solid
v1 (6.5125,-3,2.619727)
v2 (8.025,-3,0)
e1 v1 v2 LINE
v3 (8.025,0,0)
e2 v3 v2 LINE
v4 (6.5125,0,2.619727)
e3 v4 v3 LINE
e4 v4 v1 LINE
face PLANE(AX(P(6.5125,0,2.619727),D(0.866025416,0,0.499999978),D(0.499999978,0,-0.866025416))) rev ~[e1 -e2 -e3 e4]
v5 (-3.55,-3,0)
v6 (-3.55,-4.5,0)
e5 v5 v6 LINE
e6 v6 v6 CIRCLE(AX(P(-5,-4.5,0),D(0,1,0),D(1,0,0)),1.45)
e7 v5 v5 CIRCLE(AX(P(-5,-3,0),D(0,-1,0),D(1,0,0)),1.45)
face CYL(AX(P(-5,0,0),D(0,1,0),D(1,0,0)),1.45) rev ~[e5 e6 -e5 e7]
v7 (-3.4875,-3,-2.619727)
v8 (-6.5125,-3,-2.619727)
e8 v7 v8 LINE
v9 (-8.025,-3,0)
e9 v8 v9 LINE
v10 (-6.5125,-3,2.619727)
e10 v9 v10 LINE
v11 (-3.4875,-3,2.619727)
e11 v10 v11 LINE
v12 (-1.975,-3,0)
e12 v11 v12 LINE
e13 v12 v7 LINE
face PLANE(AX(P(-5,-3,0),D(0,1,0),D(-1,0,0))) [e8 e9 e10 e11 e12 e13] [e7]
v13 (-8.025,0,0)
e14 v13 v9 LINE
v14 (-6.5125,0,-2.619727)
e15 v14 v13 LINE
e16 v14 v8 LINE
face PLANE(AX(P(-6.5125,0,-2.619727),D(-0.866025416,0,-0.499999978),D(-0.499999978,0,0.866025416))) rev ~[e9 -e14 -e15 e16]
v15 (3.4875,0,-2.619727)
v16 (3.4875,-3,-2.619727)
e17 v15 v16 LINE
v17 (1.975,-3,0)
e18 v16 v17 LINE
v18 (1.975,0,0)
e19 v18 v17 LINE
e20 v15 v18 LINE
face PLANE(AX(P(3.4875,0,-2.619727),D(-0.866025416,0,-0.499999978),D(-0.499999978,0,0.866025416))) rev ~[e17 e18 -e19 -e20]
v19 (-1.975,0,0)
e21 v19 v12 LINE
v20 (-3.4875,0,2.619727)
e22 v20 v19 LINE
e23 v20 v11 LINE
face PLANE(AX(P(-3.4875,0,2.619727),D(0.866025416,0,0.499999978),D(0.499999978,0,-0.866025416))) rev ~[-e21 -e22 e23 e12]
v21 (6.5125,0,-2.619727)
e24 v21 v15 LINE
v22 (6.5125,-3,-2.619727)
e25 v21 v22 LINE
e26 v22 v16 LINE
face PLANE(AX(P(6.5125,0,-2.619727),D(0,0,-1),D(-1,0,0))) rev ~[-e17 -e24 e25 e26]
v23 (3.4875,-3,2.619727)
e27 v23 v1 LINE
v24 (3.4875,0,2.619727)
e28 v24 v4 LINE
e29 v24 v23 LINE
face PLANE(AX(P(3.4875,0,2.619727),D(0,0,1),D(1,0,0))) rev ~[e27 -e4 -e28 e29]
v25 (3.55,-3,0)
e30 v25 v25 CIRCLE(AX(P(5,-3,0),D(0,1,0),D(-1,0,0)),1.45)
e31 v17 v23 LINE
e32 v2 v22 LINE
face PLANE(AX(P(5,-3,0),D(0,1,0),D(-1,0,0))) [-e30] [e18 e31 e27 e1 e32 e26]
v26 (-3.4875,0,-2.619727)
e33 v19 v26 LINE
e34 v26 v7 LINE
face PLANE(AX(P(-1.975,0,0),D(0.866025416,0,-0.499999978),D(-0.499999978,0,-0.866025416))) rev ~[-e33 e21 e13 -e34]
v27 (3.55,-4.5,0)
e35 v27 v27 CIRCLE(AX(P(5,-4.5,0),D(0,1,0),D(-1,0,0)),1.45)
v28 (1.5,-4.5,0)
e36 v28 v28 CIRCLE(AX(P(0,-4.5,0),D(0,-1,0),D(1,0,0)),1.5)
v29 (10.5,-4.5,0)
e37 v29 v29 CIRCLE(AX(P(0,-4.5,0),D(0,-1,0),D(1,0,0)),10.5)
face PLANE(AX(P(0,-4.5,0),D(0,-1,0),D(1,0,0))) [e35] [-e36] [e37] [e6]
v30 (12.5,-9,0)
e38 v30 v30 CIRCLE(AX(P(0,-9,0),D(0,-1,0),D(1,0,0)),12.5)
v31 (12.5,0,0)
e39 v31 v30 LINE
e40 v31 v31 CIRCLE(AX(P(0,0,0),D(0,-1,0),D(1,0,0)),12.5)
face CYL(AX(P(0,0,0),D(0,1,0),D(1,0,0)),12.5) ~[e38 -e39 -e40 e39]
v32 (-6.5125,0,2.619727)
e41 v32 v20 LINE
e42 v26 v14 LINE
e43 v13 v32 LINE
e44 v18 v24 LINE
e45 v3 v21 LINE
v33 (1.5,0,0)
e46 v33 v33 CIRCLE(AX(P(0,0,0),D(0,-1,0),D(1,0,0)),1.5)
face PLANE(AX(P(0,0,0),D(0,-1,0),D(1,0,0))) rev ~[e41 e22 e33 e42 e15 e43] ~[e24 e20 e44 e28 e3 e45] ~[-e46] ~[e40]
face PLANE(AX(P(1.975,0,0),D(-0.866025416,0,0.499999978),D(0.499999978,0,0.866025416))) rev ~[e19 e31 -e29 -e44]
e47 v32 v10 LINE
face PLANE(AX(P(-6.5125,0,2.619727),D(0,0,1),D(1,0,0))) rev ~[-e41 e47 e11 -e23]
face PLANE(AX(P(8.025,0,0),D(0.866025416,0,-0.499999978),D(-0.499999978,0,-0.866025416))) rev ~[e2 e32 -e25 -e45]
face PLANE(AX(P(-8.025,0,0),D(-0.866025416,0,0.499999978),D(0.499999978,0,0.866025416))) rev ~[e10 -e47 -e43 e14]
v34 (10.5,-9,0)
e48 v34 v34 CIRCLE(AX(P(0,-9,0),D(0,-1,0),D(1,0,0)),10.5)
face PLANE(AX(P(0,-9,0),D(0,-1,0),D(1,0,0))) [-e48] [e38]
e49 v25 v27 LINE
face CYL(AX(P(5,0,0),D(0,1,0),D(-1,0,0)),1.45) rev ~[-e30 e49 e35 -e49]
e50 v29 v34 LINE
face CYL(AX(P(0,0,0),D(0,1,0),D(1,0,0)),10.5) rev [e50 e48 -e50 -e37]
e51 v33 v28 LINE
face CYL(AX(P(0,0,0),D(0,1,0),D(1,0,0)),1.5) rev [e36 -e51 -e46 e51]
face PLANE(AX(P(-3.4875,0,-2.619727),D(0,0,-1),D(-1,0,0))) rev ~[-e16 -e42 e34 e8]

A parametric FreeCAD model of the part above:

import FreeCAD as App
import Part
import Sketcher

V = App.Vector
Q = App.Units.Quantity


def add_polygon(sketch, points):
    """Adds a closed chain of lines whose ends are joined by coincident constraints."""
    first, n = sketch.GeometryCount, len(points)
    for a, b in zip(points, points[1:] + points[:1]):
        sketch.addGeometry(Part.LineSegment(App.Vector(*a, 0), App.Vector(*b, 0)), False)
    for i in range(n):
        sketch.addConstraint(Sketcher.Constraint("Coincident", first + i, 2, first + (i + 1) % n, 1))

doc = App.newDocument("Part")
body = doc.addObject("PartDesign::Body", "Body")

sketch1 = body.newObject("Sketcher::SketchObject", "Sketch")
sketch1.AttachmentSupport = (doc.getObject("XZ_Plane"), [""])
sketch1.MapMode = "FlatFace"
sketch1.addGeometry([
    Part.Circle(V(0, 0, 0), V(0, 0, 1), 10.5),
    Part.Circle(V(0, 0, 0), V(0, 0, 1), 1.5),
], False)
sketch1.addConstraint([
    Sketcher.Constraint("Coincident", 0, 3, -1, 1),
    Sketcher.Constraint("Coincident", 1, 3, -1, 1),
    Sketcher.Constraint("Diameter", 0, 21.0),
    Sketcher.Constraint("Diameter", 1, 3.0),
])
pad1 = body.newObject("PartDesign::Pad", "Pad")
pad1.Profile = sketch1
pad1.Length = 4.5

sketch2 = body.newObject("Sketcher::SketchObject", "Sketch001")
sketch2.AttachmentSupport = (doc.getObject("XZ_Plane"), [""])
sketch2.MapMode = "FlatFace"
sketch2.addGeometry([
    Part.Circle(V(0, 0, 0), V(0, 0, 1), 12),
    Part.Circle(V(0, 0, 0), V(0, 0, 1), 10),
], False)
sketch2.addConstraint([
    Sketcher.Constraint("Coincident", 0, 3, -1, 1),
    Sketcher.Constraint("Coincident", 1, 3, -1, 1),
    Sketcher.Constraint("Diameter", 0, 25.0),
    Sketcher.Constraint("Diameter", 1, 21.0),
])
pad2 = body.newObject("PartDesign::Pad", "Pad001")
pad2.Profile = sketch2
pad2.Length = 9

sketch3 = body.newObject("Sketcher::SketchObject", "Sketch002")
sketch3.AttachmentSupport = (doc.getObject("XZ_Plane"), [""])
sketch3.MapMode = "FlatFace"
sketch3.addGeometry(Part.Circle(V(-5, 0, 0), V(0, 0, 1), 1.4), False)
sketch3.addConstraint([
    Sketcher.Constraint("PointOnObject", 0, 3, -1),
    Sketcher.Constraint("Diameter", 0, 2.9),
    Sketcher.Constraint("DistanceX", 0, 3, -1, 1, 5.0),
])
pocket1 = body.newObject("PartDesign::Pocket", "Pocket")
pocket1.Profile = sketch3
pocket1.Length = 4.5
pocket1.Reversed = True

sketch4 = body.newObject("Sketcher::SketchObject", "Sketch003")
sketch4.AttachmentSupport = (doc.getObject("XZ_Plane"), [""])
sketch4.MapMode = "FlatFace"
sketch4.addGeometry(Part.Circle(V(5, 0, 0), V(0, 0, 1), 1.4), False)
sketch4.addConstraint([
    Sketcher.Constraint("PointOnObject", 0, 3, -1),
    Sketcher.Constraint("Diameter", 0, 2.9),
    Sketcher.Constraint("DistanceX", -1, 1, 0, 3, 5.0),
])
pocket2 = body.newObject("PartDesign::Pocket", "Pocket001")
pocket2.Profile = sketch4
pocket2.Length = 4.5
pocket2.Reversed = True

sketch5 = body.newObject("Sketcher::SketchObject", "Sketch004")
sketch5.AttachmentSupport = (doc.getObject("XZ_Plane"), [""])
sketch5.MapMode = "FlatFace"
add_polygon(sketch5, [(2, 0), (3.5, 2.6), (6.5, 2.6), (8, 0), (6.5, -2.6), (3.5, -2.6)])
sketch5.addGeometry(Part.Circle(V(5, 0, 0), V(0, 0, 1), 1.4), False)
add_polygon(sketch5, [(-3.5, 2.6), (-2, 0), (-3.5, -2.6), (-6.5, -2.6), (-8, 0), (-6.5, 2.6)])
sketch5.addGeometry(Part.Circle(V(-5, 0, 0), V(0, 0, 1), 1.4), False)
sketch5.addConstraint([
    Sketcher.Constraint("Horizontal", 1),
    Sketcher.Constraint("Horizontal", 4),
    Sketcher.Constraint("Horizontal", 9),
    Sketcher.Constraint("Horizontal", 12),
    Sketcher.Constraint("Equal", 6, 13),
    Sketcher.Constraint("Symmetric", 6, 3, 13, 3, -1, 1),
    Sketcher.Constraint("Symmetric", 5, 2, 7, 2, -1, 1),
    Sketcher.Constraint("Symmetric", 0, 2, 8, 2, -1, 1),
    Sketcher.Constraint("Symmetric", 2, 2, 10, 2, -1, 1),
    Sketcher.Constraint("Symmetric", 3, 2, 11, 2, -1, 1),
    Sketcher.Constraint("Symmetric", 4, 2, 8, 2, -2),
    Sketcher.Constraint("PointOnObject", 6, 3, -1),
    Sketcher.Constraint("PointOnObject", 2, 2, -1),
    Sketcher.Constraint("PointOnObject", 5, 2, -1),
    Sketcher.Constraint("Parallel", 0, 3),
    Sketcher.Constraint("Parallel", 2, 5),
    Sketcher.Constraint("Parallel", 5, 7),
    Sketcher.Constraint("Parallel", 7, 10),
    Sketcher.Constraint("Diameter", 6, 2.9),
    Sketcher.Constraint("Angle", 0, Q("60.000001 deg")),
    Sketcher.Constraint("DistanceX", -1, 1, 6, 3, 5.0),
    Sketcher.Constraint("DistanceX", 9, 2, 4, 2, 10.0),
    Sketcher.Constraint("DistanceX", 1, 1, 1, 2, 3.025),
    Sketcher.Constraint("DistanceX", 7, 2, 5, 2, 3.95),
])
pocket3 = body.newObject("PartDesign::Pocket", "Pocket002")
pocket3.Profile = sketch5
pocket3.Length = 3
pocket3.Reversed = True

doc.recompute()
